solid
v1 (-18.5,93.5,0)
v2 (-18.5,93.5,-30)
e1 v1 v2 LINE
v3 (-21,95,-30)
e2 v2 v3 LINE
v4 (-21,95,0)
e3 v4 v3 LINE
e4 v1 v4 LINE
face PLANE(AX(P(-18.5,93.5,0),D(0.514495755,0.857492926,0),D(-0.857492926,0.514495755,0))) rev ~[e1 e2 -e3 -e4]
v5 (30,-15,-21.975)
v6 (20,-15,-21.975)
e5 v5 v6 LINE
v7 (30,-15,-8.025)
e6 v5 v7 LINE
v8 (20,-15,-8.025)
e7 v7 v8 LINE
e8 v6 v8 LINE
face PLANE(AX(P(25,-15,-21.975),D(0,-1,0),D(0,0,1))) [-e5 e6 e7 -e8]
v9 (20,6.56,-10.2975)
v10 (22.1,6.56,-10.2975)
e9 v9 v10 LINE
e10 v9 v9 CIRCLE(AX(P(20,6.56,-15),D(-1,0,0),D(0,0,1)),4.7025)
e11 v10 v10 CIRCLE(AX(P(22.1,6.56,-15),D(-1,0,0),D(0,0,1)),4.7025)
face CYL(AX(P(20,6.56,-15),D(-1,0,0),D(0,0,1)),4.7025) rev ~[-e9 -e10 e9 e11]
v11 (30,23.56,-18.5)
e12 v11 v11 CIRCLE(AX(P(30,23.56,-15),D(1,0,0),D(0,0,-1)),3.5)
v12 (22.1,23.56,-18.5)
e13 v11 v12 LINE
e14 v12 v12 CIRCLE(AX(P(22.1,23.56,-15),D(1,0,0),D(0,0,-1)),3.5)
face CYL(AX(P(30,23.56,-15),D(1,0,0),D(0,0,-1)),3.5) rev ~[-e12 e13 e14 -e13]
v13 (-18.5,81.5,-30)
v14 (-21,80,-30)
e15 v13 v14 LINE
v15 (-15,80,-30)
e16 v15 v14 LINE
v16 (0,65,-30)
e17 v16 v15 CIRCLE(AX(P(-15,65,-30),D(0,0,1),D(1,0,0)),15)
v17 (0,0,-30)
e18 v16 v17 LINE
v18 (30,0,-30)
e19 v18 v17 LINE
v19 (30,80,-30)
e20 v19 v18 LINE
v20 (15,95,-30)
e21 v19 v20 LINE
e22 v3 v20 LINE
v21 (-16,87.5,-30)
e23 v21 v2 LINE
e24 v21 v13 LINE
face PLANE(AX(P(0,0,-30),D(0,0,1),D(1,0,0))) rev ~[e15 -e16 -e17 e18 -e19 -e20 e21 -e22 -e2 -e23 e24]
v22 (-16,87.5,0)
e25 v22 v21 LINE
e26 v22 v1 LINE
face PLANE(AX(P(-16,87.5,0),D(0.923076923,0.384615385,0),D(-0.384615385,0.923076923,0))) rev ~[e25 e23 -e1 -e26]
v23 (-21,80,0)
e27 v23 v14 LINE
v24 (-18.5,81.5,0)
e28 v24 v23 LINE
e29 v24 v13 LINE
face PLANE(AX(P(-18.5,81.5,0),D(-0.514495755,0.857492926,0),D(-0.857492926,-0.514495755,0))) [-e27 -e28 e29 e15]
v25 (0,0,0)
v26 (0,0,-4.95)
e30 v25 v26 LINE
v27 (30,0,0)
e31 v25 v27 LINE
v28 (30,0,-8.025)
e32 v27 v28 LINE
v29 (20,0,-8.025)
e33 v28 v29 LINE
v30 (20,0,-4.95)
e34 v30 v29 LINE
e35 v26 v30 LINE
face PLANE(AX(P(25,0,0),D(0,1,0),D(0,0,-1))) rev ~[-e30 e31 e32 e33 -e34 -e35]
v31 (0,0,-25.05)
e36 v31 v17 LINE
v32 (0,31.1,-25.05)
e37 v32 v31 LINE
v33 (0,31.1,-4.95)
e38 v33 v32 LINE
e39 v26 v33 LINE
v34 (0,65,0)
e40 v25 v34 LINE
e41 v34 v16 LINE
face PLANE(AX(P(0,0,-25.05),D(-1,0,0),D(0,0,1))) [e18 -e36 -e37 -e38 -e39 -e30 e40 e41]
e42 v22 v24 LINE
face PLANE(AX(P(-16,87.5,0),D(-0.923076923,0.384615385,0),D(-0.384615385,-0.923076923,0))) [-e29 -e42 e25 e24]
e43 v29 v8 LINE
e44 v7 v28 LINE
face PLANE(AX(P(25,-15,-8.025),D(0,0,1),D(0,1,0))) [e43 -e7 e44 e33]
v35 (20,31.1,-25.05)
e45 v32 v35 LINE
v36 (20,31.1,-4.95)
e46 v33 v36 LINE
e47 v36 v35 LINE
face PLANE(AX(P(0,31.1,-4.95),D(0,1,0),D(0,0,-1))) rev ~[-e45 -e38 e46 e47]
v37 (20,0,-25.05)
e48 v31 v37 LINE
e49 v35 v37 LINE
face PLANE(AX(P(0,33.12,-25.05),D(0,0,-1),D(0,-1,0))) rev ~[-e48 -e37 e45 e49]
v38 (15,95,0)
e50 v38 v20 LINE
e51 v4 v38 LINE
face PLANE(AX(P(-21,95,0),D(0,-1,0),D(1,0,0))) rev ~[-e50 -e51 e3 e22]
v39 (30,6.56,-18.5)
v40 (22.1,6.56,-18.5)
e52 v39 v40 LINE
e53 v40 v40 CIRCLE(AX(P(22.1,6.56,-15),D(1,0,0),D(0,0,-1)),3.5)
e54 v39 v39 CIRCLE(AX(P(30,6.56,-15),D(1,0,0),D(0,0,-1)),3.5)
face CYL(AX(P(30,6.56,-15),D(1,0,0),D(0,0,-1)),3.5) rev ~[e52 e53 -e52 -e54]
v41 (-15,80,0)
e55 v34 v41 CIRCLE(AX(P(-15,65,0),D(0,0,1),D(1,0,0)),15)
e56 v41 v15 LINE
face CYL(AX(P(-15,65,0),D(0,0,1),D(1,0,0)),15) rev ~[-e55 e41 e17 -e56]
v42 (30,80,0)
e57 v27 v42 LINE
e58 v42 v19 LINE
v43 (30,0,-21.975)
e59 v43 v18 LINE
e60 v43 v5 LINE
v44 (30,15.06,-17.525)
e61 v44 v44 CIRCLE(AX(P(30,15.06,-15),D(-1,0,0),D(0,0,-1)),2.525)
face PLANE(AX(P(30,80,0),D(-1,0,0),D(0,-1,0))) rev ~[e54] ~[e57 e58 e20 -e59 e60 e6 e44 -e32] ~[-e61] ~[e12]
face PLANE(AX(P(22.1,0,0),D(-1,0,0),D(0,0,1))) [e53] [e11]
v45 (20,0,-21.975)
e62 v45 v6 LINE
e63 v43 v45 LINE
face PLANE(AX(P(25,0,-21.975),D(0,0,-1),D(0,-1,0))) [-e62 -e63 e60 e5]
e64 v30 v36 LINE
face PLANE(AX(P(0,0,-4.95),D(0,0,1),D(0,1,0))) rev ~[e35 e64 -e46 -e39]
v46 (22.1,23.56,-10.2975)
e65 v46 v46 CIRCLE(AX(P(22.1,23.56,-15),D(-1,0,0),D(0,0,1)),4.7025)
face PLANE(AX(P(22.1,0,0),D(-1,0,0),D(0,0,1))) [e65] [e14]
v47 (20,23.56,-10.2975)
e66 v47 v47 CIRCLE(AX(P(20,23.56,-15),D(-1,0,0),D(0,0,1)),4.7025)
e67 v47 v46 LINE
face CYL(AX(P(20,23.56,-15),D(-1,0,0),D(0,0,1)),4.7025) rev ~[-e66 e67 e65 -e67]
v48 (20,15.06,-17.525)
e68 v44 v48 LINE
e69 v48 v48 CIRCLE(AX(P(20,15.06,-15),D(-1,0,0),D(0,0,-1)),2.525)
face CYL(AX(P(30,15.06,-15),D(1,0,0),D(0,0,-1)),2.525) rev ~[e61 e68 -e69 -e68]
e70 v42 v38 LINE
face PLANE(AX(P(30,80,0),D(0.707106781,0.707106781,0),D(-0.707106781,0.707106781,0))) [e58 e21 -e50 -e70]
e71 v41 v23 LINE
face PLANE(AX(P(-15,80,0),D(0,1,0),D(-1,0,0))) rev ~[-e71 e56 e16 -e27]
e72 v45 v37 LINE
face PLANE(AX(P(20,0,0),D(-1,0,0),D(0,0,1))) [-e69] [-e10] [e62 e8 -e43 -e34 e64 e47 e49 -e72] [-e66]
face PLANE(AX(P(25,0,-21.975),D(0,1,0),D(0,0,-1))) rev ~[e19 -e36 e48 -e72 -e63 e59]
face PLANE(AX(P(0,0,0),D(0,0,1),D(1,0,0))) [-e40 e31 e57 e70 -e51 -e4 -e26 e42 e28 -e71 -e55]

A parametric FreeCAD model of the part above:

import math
import FreeCAD as App
import Part
import Sketcher
from FreeCAD import Vector

doc = App.newDocument("Part")
body = doc.addObject("PartDesign::Body", "Body")

# Sketch on XY plane
sketch1 = doc.addObject("Sketcher::SketchObject", "Sketch")
body.addObject(sketch1)
sketch1.AttachmentSupport = (doc.XY_Plane, [""])
sketch1.MapMode = "FlatFace"
sketch1.addGeometry([
    Part.LineSegment(Vector(0, 40, 0), Vector(0, 0, 0)),
    Part.LineSegment(Vector(0, 0, 0), Vector(25, 0, 0)),
    Part.LineSegment(Vector(25, 0, 0), Vector(25, 40, 0)),
    Part.LineSegment(Vector(25, 40, 0), Vector(0, 40, 0)),
], False)
sketch1.addConstraint([
    Sketcher.Constraint("Coincident", 0, 2, 1, 1),
    Sketcher.Constraint("Coincident", 1, 2, 2, 1),
    Sketcher.Constraint("Coincident", 2, 2, 3, 1),
    Sketcher.Constraint("Coincident", 3, 2, 0, 1),
    Sketcher.Constraint("Vertical", 0),
    Sketcher.Constraint("Horizontal", 1),
    Sketcher.Constraint("Vertical", 2),
    Sketcher.Constraint("Horizontal", 3),
    Sketcher.Constraint("Coincident", 0, 2, -1, 1),
    Sketcher.Constraint("DistanceX", 1, 1, 1, 2, 25.0),
    Sketcher.Constraint("DistanceY", 0, 2, 0, 1, 40.0),
])
pad1 = doc.addObject("PartDesign::Pad", "Pad")
body.addObject(pad1)
pad1.Profile = sketch1
pad1.Length = 30
pad1.Reversed = True

# Sketch on YZ plane
sketch2 = doc.addObject("Sketcher::SketchObject", "Sketch001")
body.addObject(sketch2)
sketch2.AttachmentSupport = (doc.YZ_Plane, [""])
sketch2.MapMode = "FlatFace"
sketch2.AttachmentOffset = App.Placement(Vector(0, 0, 25), App.Rotation())
sketch2.addGeometry(Part.Circle(Vector(6.6, -15, 0), Vector(0, 0, 1), 2.5), False)
sketch2.addConstraint([
    Sketcher.Constraint("Diameter", 0, 4.92),
    Sketcher.Constraint("DistanceY", 0, 3, -1, 1, 15.0),
    Sketcher.Constraint("DistanceX", -1, 1, 0, 3, 6.56),
])
pocket1 = doc.addObject("PartDesign::Pocket", "Pocket")
body.addObject(pocket1)
pocket1.Profile = sketch2
pocket1.Length = 30

# Sketch on YZ plane
sketch3 = doc.addObject("Sketcher::SketchObject", "Sketch002")
body.addObject(sketch3)
sketch3.AttachmentSupport = (doc.YZ_Plane, [""])
sketch3.MapMode = "FlatFace"
sketch3.addGeometry([
    Part.LineSegment(Vector(0, -25, 0), Vector(0, -5, 0)),
    Part.LineSegment(Vector(0, -5, 0), Vector(33, -5, 0)),
    Part.LineSegment(Vector(33, -5, 0), Vector(33, -25, 0)),
    Part.LineSegment(Vector(33, -25, 0), Vector(0, -25, 0)),
], False)
sketch3.addConstraint([
    Sketcher.Constraint("Coincident", 0, 2, 1, 1),
    Sketcher.Constraint("Coincident", 1, 2, 2, 1),
    Sketcher.Constraint("Coincident", 2, 2, 3, 1),
    Sketcher.Constraint("Coincident", 3, 2, 0, 1),
    Sketcher.Constraint("Vertical", 0),
    Sketcher.Constraint("Horizontal", 1),
    Sketcher.Constraint("Vertical", 2),
    Sketcher.Constraint("Horizontal", 3),
    Sketcher.Constraint("PointOnObject", 0, 2, -2),
    Sketcher.Constraint("DistanceY", 0, 1, 0, 2, 20.1),
    Sketcher.Constraint("DistanceX", 1, 1, 1, 2, 33.12),
    Sketcher.Constraint("DistanceY", 0, 2, -1, 1, 4.95),
])
pocket2 = doc.addObject("PartDesign::Pocket", "Pocket001")
body.addObject(pocket2)
pocket2.Profile = sketch3
pocket2.Length = 20
pocket2.Reversed = True

# Sketch on XZ plane
sketch4 = doc.addObject("Sketcher::SketchObject", "Sketch003")
body.addObject(sketch4)
sketch4.AttachmentSupport = (doc.XZ_Plane, [""])
sketch4.MapMode = "FlatFace"
sketch4.addGeometry([
    Part.LineSegment(Vector(25, -8, 0), Vector(20, -8, 0)),
    Part.LineSegment(Vector(20, -8, 0), Vector(20, -22, 0)),
    Part.LineSegment(Vector(20, -22, 0), Vector(25, -22, 0)),
    Part.LineSegment(Vector(25, -22, 0), Vector(25, -8, 0)),
], False)
sketch4.addConstraint([
    Sketcher.Constraint("Coincident", 0, 2, 1, 1),
    Sketcher.Constraint("Coincident", 1, 2, 2, 1),
    Sketcher.Constraint("Coincident", 2, 2, 3, 1),
    Sketcher.Constraint("Coincident", 3, 2, 0, 1),
    Sketcher.Constraint("Horizontal", 0),
    Sketcher.Constraint("Vertical", 1),
    Sketcher.Constraint("Horizontal", 2),
    Sketcher.Constraint("Vertical", 3),
    Sketcher.Constraint("DistanceY", 1, 2, 1, 1, 13.95),
    Sketcher.Constraint("DistanceX", 0, 2, 0, 1, 5.0),
    Sketcher.Constraint("DistanceX", -1, 1, 0, 2, 20.0),
    Sketcher.Constraint("DistanceY", 0, 2, -1, 1, 8.025),
])
pad2 = doc.addObject("PartDesign::Pad", "Pad001")
body.addObject(pad2)
pad2.Profile = sketch4
pad2.Length = 15

# Sketch on YZ plane
sketch5 = doc.addObject("Sketcher::SketchObject", "Sketch004")
body.addObject(sketch5)
sketch5.AttachmentSupport = (doc.YZ_Plane, [""])
sketch5.MapMode = "FlatFace"
sketch5.AttachmentOffset = App.Placement(Vector(0, 0, 20), App.Rotation())
sketch5.addGeometry([
    Part.Circle(Vector(6.6, -15, 0), Vector(0, 0, 1), 4.7),
    Part.Circle(Vector(6.6, -15, 0), Vector(0, 0, 1), 2.5),
], False)
sketch5.addConstraint([
    Sketcher.Constraint("Coincident", 1, 3, 0, 3),
    Sketcher.Constraint("Diameter", 0, 9.405),
    Sketcher.Constraint("Diameter", 1, 4.92),
    Sketcher.Constraint("DistanceY", 0, 3, -1, 1, 15.0),
    Sketcher.Constraint("DistanceX", -1, 1, 0, 3, 6.56),
])
pocket3 = doc.addObject("PartDesign::Pocket", "Pocket002")
body.addObject(pocket3)
pocket3.Profile = sketch5
pocket3.Length = 2.1
pocket3.Reversed = True

# Sketch on YZ plane
sketch6 = doc.addObject("Sketcher::SketchObject", "Sketch005")
body.addObject(sketch6)
sketch6.AttachmentSupport = (doc.YZ_Plane, [""])
sketch6.MapMode = "FlatFace"
sketch6.AttachmentOffset = App.Placement(Vector(0, 0, 25), App.Rotation())
sketch6.addGeometry(Part.Circle(Vector(23.6, -15, 0), Vector(0, 0, 1), 2.5), False)
sketch6.addConstraint([
    Sketcher.Constraint("Diameter", 0, 4.92),
    Sketcher.Constraint("DistanceY", 0, 3, -1, 1, 15.0),
    Sketcher.Constraint("DistanceX", -1, 1, 0, 3, 23.56),
])
pocket4 = doc.addObject("PartDesign::Pocket", "Pocket003")
body.addObject(pocket4)
pocket4.Profile = sketch6
pocket4.Length = 10

# Sketch on YZ plane
sketch7 = doc.addObject("Sketcher::SketchObject", "Sketch006")
body.addObject(sketch7)
sketch7.AttachmentSupport = (doc.YZ_Plane, [""])
sketch7.MapMode = "FlatFace"
sketch7.AttachmentOffset = App.Placement(Vector(0, 0, 20), App.Rotation())
sketch7.addGeometry([
    Part.Circle(Vector(23.6, -15, 0), Vector(0, 0, 1), 4.7),
    Part.Circle(Vector(23.6, -15, 0), Vector(0, 0, 1), 2.5),
], False)
sketch7.addConstraint([
    Sketcher.Constraint("Coincident", 1, 3, 0, 3),
    Sketcher.Constraint("Diameter", 0, 9.405),
    Sketcher.Constraint("Diameter", 1, 4.92),
    Sketcher.Constraint("DistanceY", 0, 3, -1, 1, 15.0),
    Sketcher.Constraint("DistanceX", -1, 1, 0, 3, 23.56),
])
pocket5 = doc.addObject("PartDesign::Pocket", "Pocket004")
body.addObject(pocket5)
pocket5.Profile = sketch7
pocket5.Length = 2.1
pocket5.Reversed = True

# Sketch on YZ plane
sketch8 = doc.addObject("Sketcher::SketchObject", "Sketch007")
body.addObject(sketch8)
sketch8.AttachmentSupport = (doc.YZ_Plane, [""])
sketch8.MapMode = "FlatFace"
sketch8.AttachmentOffset = App.Placement(Vector(0, 0, 25), App.Rotation())
sketch8.addGeometry([
    Part.LineSegment(Vector(0, -30, 0), Vector(40, -30, 0)),  # 0
    Part.LineSegment(Vector(40, -30, 0), Vector(40, 0, 0)),  # 1
    Part.LineSegment(Vector(40, 0, 0), Vector(0, 0, 0)),  # 2
    Part.LineSegment(Vector(0, 0, 0), Vector(0, -8, 0)),  # 3
    Part.LineSegment(Vector(0, -8, 0), Vector(-15, -8, 0)),  # 4
    Part.LineSegment(Vector(-15, -8, 0), Vector(-15, -22, 0)),  # 5
    Part.LineSegment(Vector(-15, -22, 0), Vector(0, -22, 0)),  # 6
    Part.LineSegment(Vector(0, -22, 0), Vector(0, -30, 0)),  # 7
    Part.Circle(Vector(6.6, -15, 0), Vector(0, 0, 1), 2.5),  # 8
    Part.Circle(Vector(23.6, -15, 0), Vector(0, 0, 1), 2.5),  # 9
], False)
sketch8.addConstraint([
    Sketcher.Constraint("Coincident", 0, 2, 1, 1),
    Sketcher.Constraint("Coincident", 1, 2, 2, 1),
    Sketcher.Constraint("Coincident", 2, 2, 3, 1),
    Sketcher.Constraint("Coincident", 3, 2, 4, 1),
    Sketcher.Constraint("Coincident", 4, 2, 5, 1),
    Sketcher.Constraint("Coincident", 5, 2, 6, 1),
    Sketcher.Constraint("Coincident", 6, 2, 7, 1),
    Sketcher.Constraint("Coincident", 7, 2, 0, 1),
    Sketcher.Constraint("Horizontal", 0),
    Sketcher.Constraint("Vertical", 1),
    Sketcher.Constraint("Horizontal", 2),
    Sketcher.Constraint("Vertical", 3),
    Sketcher.Constraint("Horizontal", 4),
    Sketcher.Constraint("Vertical", 5),
    Sketcher.Constraint("Horizontal", 6),
    Sketcher.Constraint("Vertical", 7),
    Sketcher.Constraint("Coincident", 2, 2, -1, 1),
    Sketcher.Constraint("Equal", 8, 9),
    Sketcher.Constraint("PointOnObject", 6, 2, -2),
    Sketcher.Constraint("Horizontal", 8, 3, 9, 3),
    Sketcher.Constraint("Equal", 3, 7),
    Sketcher.Constraint("Diameter", 8, 4.92),
    Sketcher.Constraint("DistanceX", 0, 1, 0, 2, 40.0),
    Sketcher.Constraint("DistanceX", 4, 2, 4, 1, 15.0),
    Sketcher.Constraint("DistanceY", 1, 1, 1, 2, 30.0),
    Sketcher.Constraint("DistanceY", 8, 3, -1, 1, 15.0),
    Sketcher.Constraint("DistanceX", 8, 3, 9, 3, 17.0),
    Sketcher.Constraint("DistanceY", 5, 2, 5, 1, 13.95),
    Sketcher.Constraint("DistanceX", -1, 1, 8, 3, 6.56),
])
pad3 = doc.addObject("PartDesign::Pad", "Pad002")
body.addObject(pad3)
pad3.Profile = sketch8
pad3.Length = 5

# Sketch on XZ plane
sketch9 = doc.addObject("Sketcher::SketchObject", "Sketch008")
body.addObject(sketch9)
sketch9.AttachmentSupport = (doc.XZ_Plane, [""])
sketch9.MapMode = "FlatFace"
sketch9.AttachmentOffset = App.Placement(Vector(0, 0, -40), App.Rotation())
sketch9.addGeometry([
    Part.LineSegment(Vector(30, -30, 0), Vector(0, -30, 0)),
    Part.LineSegment(Vector(0, -30, 0), Vector(0, 0, 0)),
    Part.LineSegment(Vector(0, 0, 0), Vector(30, 0, 0)),
    Part.LineSegment(Vector(30, 0, 0), Vector(30, -30, 0)),
], False)
sketch9.addConstraint([
    Sketcher.Constraint("Coincident", 0, 2, 1, 1),
    Sketcher.Constraint("Coincident", 1, 2, 2, 1),
    Sketcher.Constraint("Coincident", 2, 2, 3, 1),
    Sketcher.Constraint("Coincident", 3, 2, 0, 1),
    Sketcher.Constraint("Horizontal", 0),
    Sketcher.Constraint("Vertical", 1),
    Sketcher.Constraint("Horizontal", 2),
    Sketcher.Constraint("Vertical", 3),
    Sketcher.Constraint("Coincident", 1, 2, -1, 1),
    Sketcher.Constraint("Equal", 2, 1),
    Sketcher.Constraint("DistanceX", 0, 2, 0, 1, 30.0),
])
pad4 = doc.addObject("PartDesign::Pad", "Pad003")
body.addObject(pad4)
pad4.Profile = sketch9
pad4.Length = 10
pad4.Reversed = True

# Sketch on YZ plane
sketch10 = doc.addObject("Sketcher::SketchObject", "Sketch009")
body.addObject(sketch10)
sketch10.AttachmentSupport = (doc.YZ_Plane, [""])
sketch10.MapMode = "FlatFace"
sketch10.AttachmentOffset = App.Placement(Vector(0, 0, 30), App.Rotation())
sketch10.addGeometry(Part.Circle(Vector(15.1, -15, 0), Vector(0, 0, 1), 2.5), False)
sketch10.addConstraint([
    Sketcher.Constraint("Diameter", 0, 5.05),
    Sketcher.Constraint("DistanceY", 0, 3, -1, 1, 15.0),
    Sketcher.Constraint("DistanceX", -1, 1, 0, 3, 15.06),
])
pocket6 = doc.addObject("PartDesign::Pocket", "Pocket005")
body.addObject(pocket6)
pocket6.Profile = sketch10
pocket6.Length = 30

# Sketch on XY plane
sketch11 = doc.addObject("Sketcher::SketchObject", "Sketch010")
body.addObject(sketch11)
sketch11.AttachmentSupport = (doc.XY_Plane, [""])
sketch11.MapMode = "FlatFace"
sketch11.addGeometry([
    Part.LineSegment(Vector(0, 50, 0), Vector(30, 50, 0)),  # 0
    Part.LineSegment(Vector(30, 50, 0), Vector(30, 80, 0)),  # 1
    Part.LineSegment(Vector(30, 80, 0), Vector(15, 95, 0)),  # 2
    Part.LineSegment(Vector(15, 95, 0), Vector(-21, 95, 0)),  # 3
    Part.LineSegment(Vector(-21, 95, 0), Vector(-18.5, 93.5, 0)),  # 4
    Part.LineSegment(Vector(-18.5, 93.5, 0), Vector(-16, 87.5, 0)),  # 5
    Part.LineSegment(Vector(-16, 87.5, 0), Vector(-18.5, 81.5, 0)),  # 6
    Part.LineSegment(Vector(-18.5, 81.5, 0), Vector(-21, 80, 0)),  # 7
    Part.LineSegment(Vector(-21, 80, 0), Vector(-15, 80, 0)),  # 8
    Part.ArcOfCircle(Part.Circle(Vector(-15, 65, 0), Vector(0, 0, 1), 15), math.radians(0), math.radians(90)),  # 9
    Part.LineSegment(Vector(0, 65, 0), Vector(0, 50, 0)),  # 10
], False)
sketch11.addConstraint([
    Sketcher.Constraint("Coincident", 0, 2, 1, 1),
    Sketcher.Constraint("Coincident", 1, 2, 2, 1),
    Sketcher.Constraint("Coincident", 2, 2, 3, 1),
    Sketcher.Constraint("Coincident", 3, 2, 4, 1),
    Sketcher.Constraint("Coincident", 4, 2, 5, 1),
    Sketcher.Constraint("Coincident", 5, 2, 6, 1),
    Sketcher.Constraint("Coincident", 6, 2, 7, 1),
    Sketcher.Constraint("Coincident", 7, 2, 8, 1),
    Sketcher.Constraint("Tangent", 8, 2, 9, 2),
    Sketcher.Constraint("Tangent", 9, 1, 10, 1),
    Sketcher.Constraint("Coincident", 10, 2, 0, 1),
    Sketcher.Constraint("Horizontal", 0),
    Sketcher.Constraint("Vertical", 1),
    Sketcher.Constraint("Horizontal", 3),
    Sketcher.Constraint("Horizontal", 8),
    Sketcher.Constraint("Vertical", 10),
    Sketcher.Constraint("PointOnObject", 9, 1, -2),
    Sketcher.Constraint("Horizontal", 1, 2, 7, 2),
    Sketcher.Constraint("Vertical", 4, 2, 6, 2),
    Sketcher.Constraint("Vertical", 3, 2, 7, 2),
    Sketcher.Constraint("Equal", 0, 1),
    Sketcher.Constraint("Equal", 5, 6),
    Sketcher.Constraint("Equal", 4, 7),
    Sketcher.Constraint("Radius", 9, 15.0),
    Sketcher.Constraint("DistanceX", 0, 1, 0, 2, 30.0),
    Sketcher.Constraint("DistanceX", 8, 1, 8, 2, 6.0),
    Sketcher.Constraint("DistanceX", -1, 1, 2, 2, 15.0),
    Sketcher.Constraint("DistanceY", 1, 2, 2, 2, 15.0),
    Sketcher.Constraint("DistanceY", 5, 2, 4, 2, 6.0),
    Sketcher.Constraint("DistanceY", -1, 1, 9, 3, 65.0),
    Sketcher.Constraint("DistanceX", 5, 2, -1, 1, 16.0),
    Sketcher.Constraint("Distance", 5, 6.5),
])
pad5 = doc.addObject("PartDesign::Pad", "Pad004")
body.addObject(pad5)
pad5.Profile = sketch11
pad5.Length = 30
pad5.Reversed = True

# Sketch on YZ plane
sketch12 = doc.addObject("Sketcher::SketchObject", "Sketch011")
body.addObject(sketch12)
sketch12.AttachmentSupport = (doc.YZ_Plane, [""])
sketch12.MapMode = "FlatFace"
sketch12.addGeometry([
    Part.LineSegment(Vector(33.1, -5, 0), Vector(33.1, -25.1, 0)),
    Part.LineSegment(Vector(33.1, -25.1, 0), Vector(31.1, -25.1, 0)),
    Part.LineSegment(Vector(31.1, -25.1, 0), Vector(31.1, -5, 0)),
    Part.LineSegment(Vector(31.1, -5, 0), Vector(33.1, -5, 0)),
], False)
sketch12.addConstraint([
    Sketcher.Constraint("Coincident", 0, 2, 1, 1),
    Sketcher.Constraint("Coincident", 1, 2, 2, 1),
    Sketcher.Constraint("Coincident", 2, 2, 3, 1),
    Sketcher.Constraint("Coincident", 3, 2, 0, 1),
    Sketcher.Constraint("Vertical", 0),
    Sketcher.Constraint("Horizontal", 1),
    Sketcher.Constraint("Vertical", 2),
    Sketcher.Constraint("Horizontal", 3),
    Sketcher.Constraint("DistanceX", 1, 2, 1, 1, 2.02),
    Sketcher.Constraint("DistanceY", 0, 2, 0, 1, 20.1),
    Sketcher.Constraint("DistanceX", -1, 1, 1, 2, 31.1),
    Sketcher.Constraint("DistanceY", 0, 2, -1, 1, 25.05),
])
pad6 = doc.addObject("PartDesign::Pad", "Pad005")
body.addObject(pad6)
pad6.Profile = sketch12
pad6.Length = 20

# Sketch on YZ plane
sketch13 = doc.addObject("Sketcher::SketchObject", "Sketch012")
body.addObject(sketch13)
sketch13.AttachmentSupport = (doc.YZ_Plane, [""])
sketch13.MapMode = "FlatFace"
sketch13.AttachmentOffset = App.Placement(Vector(0, 0, 30), App.Rotation())
sketch13.addGeometry([
    Part.Circle(Vector(23.6, -15, 0), Vector(0, 0, 1), 3.5),
    Part.Circle(Vector(23.6, -15, 0), Vector(0, 0, 1), 2.5),
    Part.Circle(Vector(6.6, -15, 0), Vector(0, 0, 1), 3.5),
    Part.Circle(Vector(6.6, -15, 0), Vector(0, 0, 1), 2.5),
], False)
sketch13.addConstraint([
    Sketcher.Constraint("Coincident", 1, 3, 0, 3),
    Sketcher.Constraint("Coincident", 3, 3, 2, 3),
    Sketcher.Constraint("Equal", 0, 2),
    Sketcher.Constraint("Equal", 1, 3),
    Sketcher.Constraint("Horizontal", 1, 3, 2, 3),
    Sketcher.Constraint("Diameter", 0, 7.0),
    Sketcher.Constraint("Diameter", 1, 4.92),
    Sketcher.Constraint("DistanceY", 0, 3, -1, 1, 15.0),
    Sketcher.Constraint("DistanceX", 2, 3, 0, 3, 17.0),
    Sketcher.Constraint("DistanceX", -1, 1, 0, 3, 23.56),
])
pocket7 = doc.addObject("PartDesign::Pocket", "Pocket006")
body.addObject(pocket7)
pocket7.Profile = sketch13
pocket7.Length = 10

doc.recompute()
